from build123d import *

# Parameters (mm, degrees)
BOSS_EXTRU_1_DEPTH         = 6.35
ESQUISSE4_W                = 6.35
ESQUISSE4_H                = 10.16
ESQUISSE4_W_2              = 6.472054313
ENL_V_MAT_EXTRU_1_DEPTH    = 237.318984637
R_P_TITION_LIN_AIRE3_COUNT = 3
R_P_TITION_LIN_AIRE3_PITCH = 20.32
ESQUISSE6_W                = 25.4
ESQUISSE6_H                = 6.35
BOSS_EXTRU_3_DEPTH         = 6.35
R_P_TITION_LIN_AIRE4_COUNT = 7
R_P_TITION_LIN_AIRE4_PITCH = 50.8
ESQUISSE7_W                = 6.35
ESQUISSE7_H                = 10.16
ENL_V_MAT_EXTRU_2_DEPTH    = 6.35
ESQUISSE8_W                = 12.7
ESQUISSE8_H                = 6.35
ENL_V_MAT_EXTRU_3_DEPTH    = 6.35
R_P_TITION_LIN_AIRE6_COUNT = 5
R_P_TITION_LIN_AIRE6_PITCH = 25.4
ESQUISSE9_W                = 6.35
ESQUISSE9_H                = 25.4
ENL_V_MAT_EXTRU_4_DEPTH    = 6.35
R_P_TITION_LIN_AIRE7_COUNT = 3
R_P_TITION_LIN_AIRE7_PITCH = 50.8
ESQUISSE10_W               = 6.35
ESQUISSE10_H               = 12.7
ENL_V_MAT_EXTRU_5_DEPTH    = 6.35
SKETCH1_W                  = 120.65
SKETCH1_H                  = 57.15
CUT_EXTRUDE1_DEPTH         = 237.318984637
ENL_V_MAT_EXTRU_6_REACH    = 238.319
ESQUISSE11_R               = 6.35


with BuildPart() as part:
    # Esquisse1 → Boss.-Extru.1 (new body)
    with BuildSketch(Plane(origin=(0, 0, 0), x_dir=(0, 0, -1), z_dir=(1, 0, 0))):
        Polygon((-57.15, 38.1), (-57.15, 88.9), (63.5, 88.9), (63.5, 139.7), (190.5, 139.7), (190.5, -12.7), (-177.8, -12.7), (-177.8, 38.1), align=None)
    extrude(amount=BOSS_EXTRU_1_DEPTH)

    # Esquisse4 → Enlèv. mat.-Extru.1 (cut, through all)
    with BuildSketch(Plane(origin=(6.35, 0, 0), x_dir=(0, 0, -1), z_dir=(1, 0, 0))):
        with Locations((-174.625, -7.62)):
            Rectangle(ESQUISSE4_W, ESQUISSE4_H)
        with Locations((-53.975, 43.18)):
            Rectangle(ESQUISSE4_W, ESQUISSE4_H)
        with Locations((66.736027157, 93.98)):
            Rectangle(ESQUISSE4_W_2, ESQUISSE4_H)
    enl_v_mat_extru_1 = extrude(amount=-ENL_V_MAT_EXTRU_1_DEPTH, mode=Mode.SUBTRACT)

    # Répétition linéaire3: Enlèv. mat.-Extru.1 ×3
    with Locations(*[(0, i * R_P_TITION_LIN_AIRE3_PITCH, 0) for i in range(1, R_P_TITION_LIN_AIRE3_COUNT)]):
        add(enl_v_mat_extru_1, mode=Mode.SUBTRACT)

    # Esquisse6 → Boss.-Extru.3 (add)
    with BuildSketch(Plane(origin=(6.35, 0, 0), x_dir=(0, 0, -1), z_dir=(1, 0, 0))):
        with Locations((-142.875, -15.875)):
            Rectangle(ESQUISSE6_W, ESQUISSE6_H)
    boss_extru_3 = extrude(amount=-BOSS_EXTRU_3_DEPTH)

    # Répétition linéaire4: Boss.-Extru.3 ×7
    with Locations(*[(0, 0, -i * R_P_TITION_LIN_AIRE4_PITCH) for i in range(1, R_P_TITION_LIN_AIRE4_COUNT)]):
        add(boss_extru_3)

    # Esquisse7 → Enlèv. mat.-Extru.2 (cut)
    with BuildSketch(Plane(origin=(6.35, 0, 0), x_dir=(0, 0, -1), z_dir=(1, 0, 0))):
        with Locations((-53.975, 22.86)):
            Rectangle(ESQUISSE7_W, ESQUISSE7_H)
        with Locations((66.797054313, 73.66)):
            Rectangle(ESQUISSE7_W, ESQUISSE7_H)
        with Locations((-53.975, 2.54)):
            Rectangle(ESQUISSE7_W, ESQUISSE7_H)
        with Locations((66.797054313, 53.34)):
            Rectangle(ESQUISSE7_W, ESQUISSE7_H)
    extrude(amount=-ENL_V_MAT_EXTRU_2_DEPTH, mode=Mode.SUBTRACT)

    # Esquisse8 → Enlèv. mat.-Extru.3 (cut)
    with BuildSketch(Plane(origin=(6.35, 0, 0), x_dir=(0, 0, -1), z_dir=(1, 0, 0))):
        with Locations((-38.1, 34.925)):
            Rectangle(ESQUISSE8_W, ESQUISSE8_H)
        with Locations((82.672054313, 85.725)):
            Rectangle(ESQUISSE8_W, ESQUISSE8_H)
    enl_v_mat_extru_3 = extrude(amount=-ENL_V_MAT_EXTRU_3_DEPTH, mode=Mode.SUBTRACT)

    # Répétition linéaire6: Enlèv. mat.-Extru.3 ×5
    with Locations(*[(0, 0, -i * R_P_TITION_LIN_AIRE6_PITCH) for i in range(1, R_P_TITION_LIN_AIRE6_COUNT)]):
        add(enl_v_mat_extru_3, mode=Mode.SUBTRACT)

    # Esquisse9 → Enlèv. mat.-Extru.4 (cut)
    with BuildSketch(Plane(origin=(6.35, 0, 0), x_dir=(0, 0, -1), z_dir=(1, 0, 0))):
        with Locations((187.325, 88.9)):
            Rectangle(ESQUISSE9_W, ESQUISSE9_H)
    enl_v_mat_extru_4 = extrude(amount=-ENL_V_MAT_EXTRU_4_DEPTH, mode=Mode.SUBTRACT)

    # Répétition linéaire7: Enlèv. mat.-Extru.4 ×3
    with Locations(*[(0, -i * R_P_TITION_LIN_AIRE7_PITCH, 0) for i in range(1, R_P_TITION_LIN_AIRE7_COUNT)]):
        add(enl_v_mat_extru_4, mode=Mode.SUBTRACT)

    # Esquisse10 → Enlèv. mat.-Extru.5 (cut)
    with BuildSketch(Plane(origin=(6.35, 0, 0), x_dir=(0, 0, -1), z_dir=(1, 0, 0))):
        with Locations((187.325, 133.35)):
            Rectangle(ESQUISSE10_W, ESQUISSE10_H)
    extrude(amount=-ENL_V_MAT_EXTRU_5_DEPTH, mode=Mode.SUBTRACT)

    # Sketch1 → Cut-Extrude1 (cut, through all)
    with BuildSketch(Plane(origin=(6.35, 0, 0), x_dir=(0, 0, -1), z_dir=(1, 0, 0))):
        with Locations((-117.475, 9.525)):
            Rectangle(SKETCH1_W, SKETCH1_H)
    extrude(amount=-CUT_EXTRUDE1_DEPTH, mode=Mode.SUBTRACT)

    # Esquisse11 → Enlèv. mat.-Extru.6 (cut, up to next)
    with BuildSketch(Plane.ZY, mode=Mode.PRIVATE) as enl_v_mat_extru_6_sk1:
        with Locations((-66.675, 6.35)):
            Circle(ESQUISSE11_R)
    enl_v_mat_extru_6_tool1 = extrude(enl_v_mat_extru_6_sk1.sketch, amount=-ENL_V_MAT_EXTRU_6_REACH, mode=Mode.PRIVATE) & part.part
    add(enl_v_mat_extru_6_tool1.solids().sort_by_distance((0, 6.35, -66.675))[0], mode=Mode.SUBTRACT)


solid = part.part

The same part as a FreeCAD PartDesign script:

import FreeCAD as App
import Part
import Sketcher
Q = App.Units.Quantity


def add_polygon(sketch, points):
    """Adds a closed chain of lines whose ends are joined by coincident constraints."""
    first, n = sketch.GeometryCount, len(points)
    for a, b in zip(points, points[1:] + points[:1]):
        sketch.addGeometry(Part.LineSegment(App.Vector(*a, 0), App.Vector(*b, 0)), False)
    for i in range(n):
        sketch.addConstraint(Sketcher.Constraint("Coincident", first + i, 2, first + (i + 1) % n, 1))

doc = App.newDocument("Part")
body = doc.addObject("PartDesign::Body", "Body")

sketch1 = body.newObject("Sketcher::SketchObject", "Sketch")
sketch1.AttachmentSupport = (doc.getObject("YZ_Plane"), [""])
sketch1.MapMode = "FlatFace"
add_polygon(sketch1, [(89, 57), (38, 57), (38, 178), (-13, 178), (-13, -190), (140, -190), (140, -64), (89, -64)])
sketch1.addConstraint(Sketcher.Constraint("Horizontal", 0))
sketch1.addConstraint(Sketcher.Constraint("Vertical", 1))
sketch1.addConstraint(Sketcher.Constraint("Horizontal", 2))
sketch1.addConstraint(Sketcher.Constraint("Vertical", 3))
sketch1.addConstraint(Sketcher.Constraint("Horizontal", 4))
sketch1.addConstraint(Sketcher.Constraint("Vertical", 5))
sketch1.addConstraint(Sketcher.Constraint("Horizontal", 6))
sketch1.addConstraint(Sketcher.Constraint("Vertical", 7))
sketch1.addConstraint(Sketcher.Constraint("Equal", 0, 2))
sketch1.addConstraint(Sketcher.Constraint("Equal", 2, 6))
sketch1.addConstraint(Sketcher.Constraint("Equal", 1, 7))
sketch1.addConstraint(Sketcher.Constraint("DistanceX", 0, 2, 0, 1, Q("2 in")))
sketch1.addConstraint(Sketcher.Constraint("DistanceY", 5, 1, 5, 2, Q("5 in")))
sketch1.addConstraint(Sketcher.Constraint("DistanceY", 3, 2, 3, 1, Q("14.5 in")))
sketch1.addConstraint(Sketcher.Constraint("DistanceY", -1, 1, 1, 2, Q("7 in")))
sketch1.addConstraint(Sketcher.Constraint("DistanceX", -1, 1, 0, 2, Q("1.5 in")))
pad1 = body.newObject("PartDesign::Pad", "Pad")
pad1.Profile = sketch1
pad1.Length = Q("0.25 in")

sketch2 = body.newObject("Sketcher::SketchObject", "Sketch001")
sketch2.AttachmentSupport = (doc.getObject("YZ_Plane"), [""])
sketch2.MapMode = "FlatFace"
sketch2.AttachmentOffset = App.Placement(App.Vector(0, 0, 0.25 * 25.4), App.Rotation())
add_polygon(sketch2, [(-3, 178), (-13, 178), (-13, 171), (-3, 171)])
add_polygon(sketch2, [(48, 57), (38, 57), (38, 51), (48, 51)])
add_polygon(sketch2, [(99, -64), (89, -64), (89, -70), (99, -70)])
sketch2.addConstraint(Sketcher.Constraint("Horizontal", 0))
sketch2.addConstraint(Sketcher.Constraint("Vertical", 1))
sketch2.addConstraint(Sketcher.Constraint("Horizontal", 2))
sketch2.addConstraint(Sketcher.Constraint("Vertical", 3))
sketch2.addConstraint(Sketcher.Constraint("Horizontal", 4))
sketch2.addConstraint(Sketcher.Constraint("Vertical", 5))
sketch2.addConstraint(Sketcher.Constraint("Horizontal", 6))
sketch2.addConstraint(Sketcher.Constraint("Vertical", 7))
sketch2.addConstraint(Sketcher.Constraint("Horizontal", 8))
sketch2.addConstraint(Sketcher.Constraint("Vertical", 9))
sketch2.addConstraint(Sketcher.Constraint("Horizontal", 10))
sketch2.addConstraint(Sketcher.Constraint("Vertical", 11))
sketch2.addConstraint(Sketcher.Constraint("Equal", 2, 4))
sketch2.addConstraint(Sketcher.Constraint("Equal", 6, 8))
sketch2.addConstraint(Sketcher.Constraint("Equal", 3, 5))
sketch2.addConstraint(Sketcher.Constraint("DistanceX", 0, 2, 0, 1, Q("0.4 in")))
sketch2.addConstraint(Sketcher.Constraint("DistanceY", -1, 1, 0, 2, Q("7 in")))
sketch2.addConstraint(Sketcher.Constraint("DistanceY", -1, 1, 5, 2, Q("2 in")))
sketch2.addConstraint(Sketcher.Constraint("DistanceX", 1, 2, 4, 2, Q("2 in")))
sketch2.addConstraint(Sketcher.Constraint("DistanceX", 5, 2, 8, 2, Q("2 in")))
sketch2.addConstraint(Sketcher.Constraint("DistanceY", 1, 2, 1, 1, Q("0.25 in")))
sketch2.addConstraint(Sketcher.Constraint("DistanceX", 0, 2, -1, 1, Q("0.5 in")))
sketch2.addConstraint(Sketcher.Constraint("DistanceY", 8, 2, -1, 1, Q("2.5 in")))
sketch2.addConstraint(Sketcher.Constraint("DistanceY", 9, 2, 9, 1, Q("6.472054 mm")))
pocket1 = body.newObject("PartDesign::Pocket", "Pocket")
pocket1.Profile = sketch2
pocket1.Type = "ThroughAll"
doc.recompute()

linearpattern = body.newObject("PartDesign::LinearPattern", "LinearPattern")
linearpattern.Originals = [pocket1]
linearpattern.Direction = (doc.getObject("Y_Axis"), [""])
linearpattern.Mode = "offset"
linearpattern.Offset = Q("0.8 in")
linearpattern.Occurrences = 3
body.Tip = linearpattern

sketch3 = body.newObject("Sketcher::SketchObject", "Sketch002")
sketch3.AttachmentSupport = (doc.getObject("YZ_Plane"), [""])
sketch3.MapMode = "FlatFace"
sketch3.AttachmentOffset = App.Placement(App.Vector(0, 0, 0.25 * 25.4), App.Rotation())
add_polygon(sketch3, [(-13, 156), (-19, 156), (-19, 130), (-13, 130)])
sketch3.addConstraint(Sketcher.Constraint("Horizontal", 0))
sketch3.addConstraint(Sketcher.Constraint("Vertical", 1))
sketch3.addConstraint(Sketcher.Constraint("Horizontal", 2))
sketch3.addConstraint(Sketcher.Constraint("Vertical", 3))
sketch3.addConstraint(Sketcher.Constraint("DistanceY", 1, 2, 1, 1, Q("1 in")))
sketch3.addConstraint(Sketcher.Constraint("DistanceX", 0, 2, 0, 1, Q("0.25 in")))
sketch3.addConstraint(Sketcher.Constraint("DistanceX", 2, 2, -1, 1, Q("0.5 in")))
sketch3.addConstraint(Sketcher.Constraint("DistanceY", -1, 1, 0, 2, Q("6.125 in")))
pad2 = body.newObject("PartDesign::Pad", "Pad001")
pad2.Profile = sketch3
pad2.Length = Q("0.25 in")
pad2.Reversed = True
doc.recompute()

linearpattern2 = body.newObject("PartDesign::LinearPattern", "LinearPattern001")
linearpattern2.Originals = [pad2]
linearpattern2.Direction = (doc.getObject("Z_Axis"), [""])
linearpattern2.Mode = "offset"
linearpattern2.Offset = Q("2 in")
linearpattern2.Occurrences = 7
linearpattern2.Reversed = True
body.Tip = linearpattern2

sketch4 = body.newObject("Sketcher::SketchObject", "Sketch003")
sketch4.AttachmentSupport = (doc.getObject("YZ_Plane"), [""])
sketch4.MapMode = "FlatFace"
sketch4.AttachmentOffset = App.Placement(App.Vector(0, 0, 0.25 * 25.4), App.Rotation())
add_polygon(sketch4, [(28, 57), (18, 57), (18, 51), (28, 51)])
add_polygon(sketch4, [(79, -64), (69, -64), (69, -70), (79, -70)])
add_polygon(sketch4, [(8, 57), (-3, 57), (-3, 51), (8, 51)])
add_polygon(sketch4, [(58, -64), (48, -64), (48, -70), (58, -70)])
sketch4.addConstraint(Sketcher.Constraint("Horizontal", 0))
sketch4.addConstraint(Sketcher.Constraint("Vertical", 1))
sketch4.addConstraint(Sketcher.Constraint("Horizontal", 2))
sketch4.addConstraint(Sketcher.Constraint("Vertical", 3))
sketch4.addConstraint(Sketcher.Constraint("Horizontal", 4))
sketch4.addConstraint(Sketcher.Constraint("Vertical", 5))
sketch4.addConstraint(Sketcher.Constraint("Horizontal", 6))
sketch4.addConstraint(Sketcher.Constraint("Vertical", 7))
sketch4.addConstraint(Sketcher.Constraint("Horizontal", 8))
sketch4.addConstraint(Sketcher.Constraint("Vertical", 9))
sketch4.addConstraint(Sketcher.Constraint("Horizontal", 10))
sketch4.addConstraint(Sketcher.Constraint("Vertical", 11))
sketch4.addConstraint(Sketcher.Constraint("Horizontal", 12))
sketch4.addConstraint(Sketcher.Constraint("Vertical", 13))
sketch4.addConstraint(Sketcher.Constraint("Horizontal", 14))
sketch4.addConstraint(Sketcher.Constraint("Vertical", 15))
sketch4.addConstraint(Sketcher.Constraint("Horizontal", 3, 2, 8, 2))
sketch4.addConstraint(Sketcher.Constraint("Horizontal", 2, 2, 9, 2))
sketch4.addConstraint(Sketcher.Constraint("Horizontal", 7, 2, 12, 2))
sketch4.addConstraint(Sketcher.Constraint("Horizontal", 6, 2, 13, 2))
sketch4.addConstraint(Sketcher.Constraint("Equal", 2, 4))
sketch4.addConstraint(Sketcher.Constraint("Equal", 6, 8))
sketch4.addConstraint(Sketcher.Constraint("Equal", 10, 12))
sketch4.addConstraint(Sketcher.Constraint("Equal", 3, 5))
sketch4.addConstraint(Sketcher.Constraint("DistanceX", 0, 2, 0, 1, Q("0.4 in")))
sketch4.addConstraint(Sketcher.Constraint("DistanceY", -1, 1, 1, 2, Q("2 in")))
sketch4.addConstraint(Sketcher.Constraint("DistanceX", 1, 2, 4, 2, Q("2 in")))
sketch4.addConstraint(Sketcher.Constraint("DistanceY", 1, 2, 1, 1, Q("0.25 in")))
sketch4.addConstraint(Sketcher.Constraint("DistanceX", -1, 1, 0, 2, Q("0.7 in")))
sketch4.addConstraint(Sketcher.Constraint("DistanceX", 8, 2, -1, 1, Q("0.1 in")))
sketch4.addConstraint(Sketcher.Constraint("DistanceX", -1, 1, 12, 2, Q("1.9 in")))
sketch4.addConstraint(Sketcher.Constraint("DistanceY", 4, 2, -1, 1, Q("63.622054 mm")))
pocket2 = body.newObject("PartDesign::Pocket", "Pocket001")
pocket2.Profile = sketch4
pocket2.Length = Q("0.25 in")

sketch5 = body.newObject("Sketcher::SketchObject", "Sketch004")
sketch5.AttachmentSupport = (doc.getObject("YZ_Plane"), [""])
sketch5.MapMode = "FlatFace"
sketch5.AttachmentOffset = App.Placement(App.Vector(0, 0, 0.25 * 25.4), App.Rotation())
add_polygon(sketch5, [(38, 44), (32, 44), (32, 32), (38, 32)])
add_polygon(sketch5, [(89, -76), (83, -76), (83, -89), (89, -89)])
sketch5.addConstraint(Sketcher.Constraint("Horizontal", 0))
sketch5.addConstraint(Sketcher.Constraint("Vertical", 1))
sketch5.addConstraint(Sketcher.Constraint("Horizontal", 2))
sketch5.addConstraint(Sketcher.Constraint("Vertical", 3))
sketch5.addConstraint(Sketcher.Constraint("Horizontal", 4))
sketch5.addConstraint(Sketcher.Constraint("Vertical", 5))
sketch5.addConstraint(Sketcher.Constraint("Horizontal", 6))
sketch5.addConstraint(Sketcher.Constraint("Vertical", 7))
sketch5.addConstraint(Sketcher.Constraint("Equal", 2, 4))
sketch5.addConstraint(Sketcher.Constraint("Equal", 3, 5))
sketch5.addConstraint(Sketcher.Constraint("DistanceY", 1, 2, 1, 1, Q("0.5 in")))
sketch5.addConstraint(Sketcher.Constraint("DistanceX", 1, 2, 4, 2, Q("2 in")))
sketch5.addConstraint(Sketcher.Constraint("DistanceX", 0, 2, 0, 1, Q("0.25 in")))
sketch5.addConstraint(Sketcher.Constraint("DistanceX", -1, 1, 2, 2, Q("1.5 in")))
sketch5.addConstraint(Sketcher.Constraint("DistanceY", -1, 1, 0, 2, Q("1.75 in")))
sketch5.addConstraint(Sketcher.Constraint("DistanceY", 4, 2, -1, 1, Q("76.322054 mm")))
pocket3 = body.newObject("PartDesign::Pocket", "Pocket002")
pocket3.Profile = sketch5
pocket3.Length = Q("0.25 in")
doc.recompute()

linearpattern3 = body.newObject("PartDesign::LinearPattern", "LinearPattern002")
linearpattern3.Originals = [pocket3]
linearpattern3.Direction = (doc.getObject("Z_Axis"), [""])
linearpattern3.Mode = "offset"
linearpattern3.Offset = Q("1 in")
linearpattern3.Occurrences = 5
linearpattern3.Reversed = True
body.Tip = linearpattern3

sketch6 = body.newObject("Sketcher::SketchObject", "Sketch005")
sketch6.AttachmentSupport = (doc.getObject("YZ_Plane"), [""])
sketch6.MapMode = "FlatFace"
sketch6.AttachmentOffset = App.Placement(App.Vector(0, 0, 0.25 * 25.4), App.Rotation())
add_polygon(sketch6, [(102, -184), (76, -184), (76, -190), (102, -190)])
sketch6.addConstraint(Sketcher.Constraint("Horizontal", 0))
sketch6.addConstraint(Sketcher.Constraint("Vertical", 1))
sketch6.addConstraint(Sketcher.Constraint("Horizontal", 2))
sketch6.addConstraint(Sketcher.Constraint("Vertical", 3))
sketch6.addConstraint(Sketcher.Constraint("DistanceX", 0, 2, 0, 1, Q("1 in")))
sketch6.addConstraint(Sketcher.Constraint("DistanceX", -1, 1, 0, 2, Q("3 in")))
sketch6.addConstraint(Sketcher.Constraint("DistanceY", 1, 2, 1, 1, Q("0.25 in")))
sketch6.addConstraint(Sketcher.Constraint("DistanceY", 1, 2, -1, 1, Q("7.5 in")))
pocket4 = body.newObject("PartDesign::Pocket", "Pocket003")
pocket4.Profile = sketch6
pocket4.Length = Q("0.25 in")
doc.recompute()

linearpattern4 = body.newObject("PartDesign::LinearPattern", "LinearPattern003")
linearpattern4.Originals = [pocket4]
linearpattern4.Direction = (doc.getObject("Y_Axis"), [""])
linearpattern4.Mode = "offset"
linearpattern4.Offset = Q("2 in")
linearpattern4.Occurrences = 3
linearpattern4.Reversed = True
body.Tip = linearpattern4

sketch7 = body.newObject("Sketcher::SketchObject", "Sketch006")
sketch7.AttachmentSupport = (doc.getObject("YZ_Plane"), [""])
sketch7.MapMode = "FlatFace"
sketch7.AttachmentOffset = App.Placement(App.Vector(0, 0, 0.25 * 25.4), App.Rotation())
add_polygon(sketch7, [(140, -184), (127, -184), (127, -190), (140, -190)])
sketch7.addConstraint(Sketcher.Constraint("Horizontal", 0))
sketch7.addConstraint(Sketcher.Constraint("Vertical", 1))
sketch7.addConstraint(Sketcher.Constraint("Horizontal", 2))
sketch7.addConstraint(Sketcher.Constraint("Vertical", 3))
sketch7.addConstraint(Sketcher.Constraint("DistanceX", 0, 2, 0, 1, Q("0.5 in")))
sketch7.addConstraint(Sketcher.Constraint("DistanceX", -1, 1, 0, 2, Q("5 in")))
sketch7.addConstraint(Sketcher.Constraint("DistanceY", 1, 2, 1, 1, Q("0.25 in")))
sketch7.addConstraint(Sketcher.Constraint("DistanceY", 1, 2, -1, 1, Q("7.5 in")))
pocket5 = body.newObject("PartDesign::Pocket", "Pocket004")
pocket5.Profile = sketch7
pocket5.Length = Q("0.25 in")

sketch8 = body.newObject("Sketcher::SketchObject", "Sketch007")
sketch8.AttachmentSupport = (doc.getObject("YZ_Plane"), [""])
sketch8.MapMode = "FlatFace"
sketch8.AttachmentOffset = App.Placement(App.Vector(0, 0, 0.25 * 25.4), App.Rotation())
add_polygon(sketch8, [(38, 178), (-19, 178), (-19, 57), (38, 57)])
sketch8.addConstraint(Sketcher.Constraint("Horizontal", 0))
sketch8.addConstraint(Sketcher.Constraint("Vertical", 1))
sketch8.addConstraint(Sketcher.Constraint("Horizontal", 2))
sketch8.addConstraint(Sketcher.Constraint("Vertical", 3))
sketch8.addConstraint(Sketcher.Constraint("DistanceY", -1, 1, 0, 2, Q("7 in")))
sketch8.addConstraint(Sketcher.Constraint("DistanceX", 0, 2, 0, 1, Q("2.25 in")))
sketch8.addConstraint(Sketcher.Constraint("DistanceY", 1, 2, 1, 1, Q("4.75 in")))
sketch8.addConstraint(Sketcher.Constraint("DistanceX", -1, 1, 2, 2, Q("1.5 in")))
pocket6 = body.newObject("PartDesign::Pocket", "Pocket005")
pocket6.Profile = sketch8
pocket6.Type = "ThroughAll"

sketch9 = body.newObject("Sketcher::SketchObject", "Sketch008")
sketch9.AttachmentSupport = (doc.getObject("YZ_Plane"), [""])
sketch9.MapMode = "FlatFace"
sketch9.addGeometry(Part.Circle(App.Vector(6, -67, 0), App.Vector(0, 0, 1), 6), False)
sketch9.addConstraint(Sketcher.Constraint("Diameter", 0, Q("0.5 in")))
sketch9.addConstraint(Sketcher.Constraint("DistanceX", -1, 1, 0, 3, Q("0.25 in")))
sketch9.addConstraint(Sketcher.Constraint("DistanceY", 0, 3, -1, 1, Q("2.625 in")))
pocket7 = body.newObject("PartDesign::Pocket", "Pocket006")
pocket7.Profile = sketch9
pocket7.Type = "UpToFirst"
pocket7.Reversed = True

doc.recompute()
